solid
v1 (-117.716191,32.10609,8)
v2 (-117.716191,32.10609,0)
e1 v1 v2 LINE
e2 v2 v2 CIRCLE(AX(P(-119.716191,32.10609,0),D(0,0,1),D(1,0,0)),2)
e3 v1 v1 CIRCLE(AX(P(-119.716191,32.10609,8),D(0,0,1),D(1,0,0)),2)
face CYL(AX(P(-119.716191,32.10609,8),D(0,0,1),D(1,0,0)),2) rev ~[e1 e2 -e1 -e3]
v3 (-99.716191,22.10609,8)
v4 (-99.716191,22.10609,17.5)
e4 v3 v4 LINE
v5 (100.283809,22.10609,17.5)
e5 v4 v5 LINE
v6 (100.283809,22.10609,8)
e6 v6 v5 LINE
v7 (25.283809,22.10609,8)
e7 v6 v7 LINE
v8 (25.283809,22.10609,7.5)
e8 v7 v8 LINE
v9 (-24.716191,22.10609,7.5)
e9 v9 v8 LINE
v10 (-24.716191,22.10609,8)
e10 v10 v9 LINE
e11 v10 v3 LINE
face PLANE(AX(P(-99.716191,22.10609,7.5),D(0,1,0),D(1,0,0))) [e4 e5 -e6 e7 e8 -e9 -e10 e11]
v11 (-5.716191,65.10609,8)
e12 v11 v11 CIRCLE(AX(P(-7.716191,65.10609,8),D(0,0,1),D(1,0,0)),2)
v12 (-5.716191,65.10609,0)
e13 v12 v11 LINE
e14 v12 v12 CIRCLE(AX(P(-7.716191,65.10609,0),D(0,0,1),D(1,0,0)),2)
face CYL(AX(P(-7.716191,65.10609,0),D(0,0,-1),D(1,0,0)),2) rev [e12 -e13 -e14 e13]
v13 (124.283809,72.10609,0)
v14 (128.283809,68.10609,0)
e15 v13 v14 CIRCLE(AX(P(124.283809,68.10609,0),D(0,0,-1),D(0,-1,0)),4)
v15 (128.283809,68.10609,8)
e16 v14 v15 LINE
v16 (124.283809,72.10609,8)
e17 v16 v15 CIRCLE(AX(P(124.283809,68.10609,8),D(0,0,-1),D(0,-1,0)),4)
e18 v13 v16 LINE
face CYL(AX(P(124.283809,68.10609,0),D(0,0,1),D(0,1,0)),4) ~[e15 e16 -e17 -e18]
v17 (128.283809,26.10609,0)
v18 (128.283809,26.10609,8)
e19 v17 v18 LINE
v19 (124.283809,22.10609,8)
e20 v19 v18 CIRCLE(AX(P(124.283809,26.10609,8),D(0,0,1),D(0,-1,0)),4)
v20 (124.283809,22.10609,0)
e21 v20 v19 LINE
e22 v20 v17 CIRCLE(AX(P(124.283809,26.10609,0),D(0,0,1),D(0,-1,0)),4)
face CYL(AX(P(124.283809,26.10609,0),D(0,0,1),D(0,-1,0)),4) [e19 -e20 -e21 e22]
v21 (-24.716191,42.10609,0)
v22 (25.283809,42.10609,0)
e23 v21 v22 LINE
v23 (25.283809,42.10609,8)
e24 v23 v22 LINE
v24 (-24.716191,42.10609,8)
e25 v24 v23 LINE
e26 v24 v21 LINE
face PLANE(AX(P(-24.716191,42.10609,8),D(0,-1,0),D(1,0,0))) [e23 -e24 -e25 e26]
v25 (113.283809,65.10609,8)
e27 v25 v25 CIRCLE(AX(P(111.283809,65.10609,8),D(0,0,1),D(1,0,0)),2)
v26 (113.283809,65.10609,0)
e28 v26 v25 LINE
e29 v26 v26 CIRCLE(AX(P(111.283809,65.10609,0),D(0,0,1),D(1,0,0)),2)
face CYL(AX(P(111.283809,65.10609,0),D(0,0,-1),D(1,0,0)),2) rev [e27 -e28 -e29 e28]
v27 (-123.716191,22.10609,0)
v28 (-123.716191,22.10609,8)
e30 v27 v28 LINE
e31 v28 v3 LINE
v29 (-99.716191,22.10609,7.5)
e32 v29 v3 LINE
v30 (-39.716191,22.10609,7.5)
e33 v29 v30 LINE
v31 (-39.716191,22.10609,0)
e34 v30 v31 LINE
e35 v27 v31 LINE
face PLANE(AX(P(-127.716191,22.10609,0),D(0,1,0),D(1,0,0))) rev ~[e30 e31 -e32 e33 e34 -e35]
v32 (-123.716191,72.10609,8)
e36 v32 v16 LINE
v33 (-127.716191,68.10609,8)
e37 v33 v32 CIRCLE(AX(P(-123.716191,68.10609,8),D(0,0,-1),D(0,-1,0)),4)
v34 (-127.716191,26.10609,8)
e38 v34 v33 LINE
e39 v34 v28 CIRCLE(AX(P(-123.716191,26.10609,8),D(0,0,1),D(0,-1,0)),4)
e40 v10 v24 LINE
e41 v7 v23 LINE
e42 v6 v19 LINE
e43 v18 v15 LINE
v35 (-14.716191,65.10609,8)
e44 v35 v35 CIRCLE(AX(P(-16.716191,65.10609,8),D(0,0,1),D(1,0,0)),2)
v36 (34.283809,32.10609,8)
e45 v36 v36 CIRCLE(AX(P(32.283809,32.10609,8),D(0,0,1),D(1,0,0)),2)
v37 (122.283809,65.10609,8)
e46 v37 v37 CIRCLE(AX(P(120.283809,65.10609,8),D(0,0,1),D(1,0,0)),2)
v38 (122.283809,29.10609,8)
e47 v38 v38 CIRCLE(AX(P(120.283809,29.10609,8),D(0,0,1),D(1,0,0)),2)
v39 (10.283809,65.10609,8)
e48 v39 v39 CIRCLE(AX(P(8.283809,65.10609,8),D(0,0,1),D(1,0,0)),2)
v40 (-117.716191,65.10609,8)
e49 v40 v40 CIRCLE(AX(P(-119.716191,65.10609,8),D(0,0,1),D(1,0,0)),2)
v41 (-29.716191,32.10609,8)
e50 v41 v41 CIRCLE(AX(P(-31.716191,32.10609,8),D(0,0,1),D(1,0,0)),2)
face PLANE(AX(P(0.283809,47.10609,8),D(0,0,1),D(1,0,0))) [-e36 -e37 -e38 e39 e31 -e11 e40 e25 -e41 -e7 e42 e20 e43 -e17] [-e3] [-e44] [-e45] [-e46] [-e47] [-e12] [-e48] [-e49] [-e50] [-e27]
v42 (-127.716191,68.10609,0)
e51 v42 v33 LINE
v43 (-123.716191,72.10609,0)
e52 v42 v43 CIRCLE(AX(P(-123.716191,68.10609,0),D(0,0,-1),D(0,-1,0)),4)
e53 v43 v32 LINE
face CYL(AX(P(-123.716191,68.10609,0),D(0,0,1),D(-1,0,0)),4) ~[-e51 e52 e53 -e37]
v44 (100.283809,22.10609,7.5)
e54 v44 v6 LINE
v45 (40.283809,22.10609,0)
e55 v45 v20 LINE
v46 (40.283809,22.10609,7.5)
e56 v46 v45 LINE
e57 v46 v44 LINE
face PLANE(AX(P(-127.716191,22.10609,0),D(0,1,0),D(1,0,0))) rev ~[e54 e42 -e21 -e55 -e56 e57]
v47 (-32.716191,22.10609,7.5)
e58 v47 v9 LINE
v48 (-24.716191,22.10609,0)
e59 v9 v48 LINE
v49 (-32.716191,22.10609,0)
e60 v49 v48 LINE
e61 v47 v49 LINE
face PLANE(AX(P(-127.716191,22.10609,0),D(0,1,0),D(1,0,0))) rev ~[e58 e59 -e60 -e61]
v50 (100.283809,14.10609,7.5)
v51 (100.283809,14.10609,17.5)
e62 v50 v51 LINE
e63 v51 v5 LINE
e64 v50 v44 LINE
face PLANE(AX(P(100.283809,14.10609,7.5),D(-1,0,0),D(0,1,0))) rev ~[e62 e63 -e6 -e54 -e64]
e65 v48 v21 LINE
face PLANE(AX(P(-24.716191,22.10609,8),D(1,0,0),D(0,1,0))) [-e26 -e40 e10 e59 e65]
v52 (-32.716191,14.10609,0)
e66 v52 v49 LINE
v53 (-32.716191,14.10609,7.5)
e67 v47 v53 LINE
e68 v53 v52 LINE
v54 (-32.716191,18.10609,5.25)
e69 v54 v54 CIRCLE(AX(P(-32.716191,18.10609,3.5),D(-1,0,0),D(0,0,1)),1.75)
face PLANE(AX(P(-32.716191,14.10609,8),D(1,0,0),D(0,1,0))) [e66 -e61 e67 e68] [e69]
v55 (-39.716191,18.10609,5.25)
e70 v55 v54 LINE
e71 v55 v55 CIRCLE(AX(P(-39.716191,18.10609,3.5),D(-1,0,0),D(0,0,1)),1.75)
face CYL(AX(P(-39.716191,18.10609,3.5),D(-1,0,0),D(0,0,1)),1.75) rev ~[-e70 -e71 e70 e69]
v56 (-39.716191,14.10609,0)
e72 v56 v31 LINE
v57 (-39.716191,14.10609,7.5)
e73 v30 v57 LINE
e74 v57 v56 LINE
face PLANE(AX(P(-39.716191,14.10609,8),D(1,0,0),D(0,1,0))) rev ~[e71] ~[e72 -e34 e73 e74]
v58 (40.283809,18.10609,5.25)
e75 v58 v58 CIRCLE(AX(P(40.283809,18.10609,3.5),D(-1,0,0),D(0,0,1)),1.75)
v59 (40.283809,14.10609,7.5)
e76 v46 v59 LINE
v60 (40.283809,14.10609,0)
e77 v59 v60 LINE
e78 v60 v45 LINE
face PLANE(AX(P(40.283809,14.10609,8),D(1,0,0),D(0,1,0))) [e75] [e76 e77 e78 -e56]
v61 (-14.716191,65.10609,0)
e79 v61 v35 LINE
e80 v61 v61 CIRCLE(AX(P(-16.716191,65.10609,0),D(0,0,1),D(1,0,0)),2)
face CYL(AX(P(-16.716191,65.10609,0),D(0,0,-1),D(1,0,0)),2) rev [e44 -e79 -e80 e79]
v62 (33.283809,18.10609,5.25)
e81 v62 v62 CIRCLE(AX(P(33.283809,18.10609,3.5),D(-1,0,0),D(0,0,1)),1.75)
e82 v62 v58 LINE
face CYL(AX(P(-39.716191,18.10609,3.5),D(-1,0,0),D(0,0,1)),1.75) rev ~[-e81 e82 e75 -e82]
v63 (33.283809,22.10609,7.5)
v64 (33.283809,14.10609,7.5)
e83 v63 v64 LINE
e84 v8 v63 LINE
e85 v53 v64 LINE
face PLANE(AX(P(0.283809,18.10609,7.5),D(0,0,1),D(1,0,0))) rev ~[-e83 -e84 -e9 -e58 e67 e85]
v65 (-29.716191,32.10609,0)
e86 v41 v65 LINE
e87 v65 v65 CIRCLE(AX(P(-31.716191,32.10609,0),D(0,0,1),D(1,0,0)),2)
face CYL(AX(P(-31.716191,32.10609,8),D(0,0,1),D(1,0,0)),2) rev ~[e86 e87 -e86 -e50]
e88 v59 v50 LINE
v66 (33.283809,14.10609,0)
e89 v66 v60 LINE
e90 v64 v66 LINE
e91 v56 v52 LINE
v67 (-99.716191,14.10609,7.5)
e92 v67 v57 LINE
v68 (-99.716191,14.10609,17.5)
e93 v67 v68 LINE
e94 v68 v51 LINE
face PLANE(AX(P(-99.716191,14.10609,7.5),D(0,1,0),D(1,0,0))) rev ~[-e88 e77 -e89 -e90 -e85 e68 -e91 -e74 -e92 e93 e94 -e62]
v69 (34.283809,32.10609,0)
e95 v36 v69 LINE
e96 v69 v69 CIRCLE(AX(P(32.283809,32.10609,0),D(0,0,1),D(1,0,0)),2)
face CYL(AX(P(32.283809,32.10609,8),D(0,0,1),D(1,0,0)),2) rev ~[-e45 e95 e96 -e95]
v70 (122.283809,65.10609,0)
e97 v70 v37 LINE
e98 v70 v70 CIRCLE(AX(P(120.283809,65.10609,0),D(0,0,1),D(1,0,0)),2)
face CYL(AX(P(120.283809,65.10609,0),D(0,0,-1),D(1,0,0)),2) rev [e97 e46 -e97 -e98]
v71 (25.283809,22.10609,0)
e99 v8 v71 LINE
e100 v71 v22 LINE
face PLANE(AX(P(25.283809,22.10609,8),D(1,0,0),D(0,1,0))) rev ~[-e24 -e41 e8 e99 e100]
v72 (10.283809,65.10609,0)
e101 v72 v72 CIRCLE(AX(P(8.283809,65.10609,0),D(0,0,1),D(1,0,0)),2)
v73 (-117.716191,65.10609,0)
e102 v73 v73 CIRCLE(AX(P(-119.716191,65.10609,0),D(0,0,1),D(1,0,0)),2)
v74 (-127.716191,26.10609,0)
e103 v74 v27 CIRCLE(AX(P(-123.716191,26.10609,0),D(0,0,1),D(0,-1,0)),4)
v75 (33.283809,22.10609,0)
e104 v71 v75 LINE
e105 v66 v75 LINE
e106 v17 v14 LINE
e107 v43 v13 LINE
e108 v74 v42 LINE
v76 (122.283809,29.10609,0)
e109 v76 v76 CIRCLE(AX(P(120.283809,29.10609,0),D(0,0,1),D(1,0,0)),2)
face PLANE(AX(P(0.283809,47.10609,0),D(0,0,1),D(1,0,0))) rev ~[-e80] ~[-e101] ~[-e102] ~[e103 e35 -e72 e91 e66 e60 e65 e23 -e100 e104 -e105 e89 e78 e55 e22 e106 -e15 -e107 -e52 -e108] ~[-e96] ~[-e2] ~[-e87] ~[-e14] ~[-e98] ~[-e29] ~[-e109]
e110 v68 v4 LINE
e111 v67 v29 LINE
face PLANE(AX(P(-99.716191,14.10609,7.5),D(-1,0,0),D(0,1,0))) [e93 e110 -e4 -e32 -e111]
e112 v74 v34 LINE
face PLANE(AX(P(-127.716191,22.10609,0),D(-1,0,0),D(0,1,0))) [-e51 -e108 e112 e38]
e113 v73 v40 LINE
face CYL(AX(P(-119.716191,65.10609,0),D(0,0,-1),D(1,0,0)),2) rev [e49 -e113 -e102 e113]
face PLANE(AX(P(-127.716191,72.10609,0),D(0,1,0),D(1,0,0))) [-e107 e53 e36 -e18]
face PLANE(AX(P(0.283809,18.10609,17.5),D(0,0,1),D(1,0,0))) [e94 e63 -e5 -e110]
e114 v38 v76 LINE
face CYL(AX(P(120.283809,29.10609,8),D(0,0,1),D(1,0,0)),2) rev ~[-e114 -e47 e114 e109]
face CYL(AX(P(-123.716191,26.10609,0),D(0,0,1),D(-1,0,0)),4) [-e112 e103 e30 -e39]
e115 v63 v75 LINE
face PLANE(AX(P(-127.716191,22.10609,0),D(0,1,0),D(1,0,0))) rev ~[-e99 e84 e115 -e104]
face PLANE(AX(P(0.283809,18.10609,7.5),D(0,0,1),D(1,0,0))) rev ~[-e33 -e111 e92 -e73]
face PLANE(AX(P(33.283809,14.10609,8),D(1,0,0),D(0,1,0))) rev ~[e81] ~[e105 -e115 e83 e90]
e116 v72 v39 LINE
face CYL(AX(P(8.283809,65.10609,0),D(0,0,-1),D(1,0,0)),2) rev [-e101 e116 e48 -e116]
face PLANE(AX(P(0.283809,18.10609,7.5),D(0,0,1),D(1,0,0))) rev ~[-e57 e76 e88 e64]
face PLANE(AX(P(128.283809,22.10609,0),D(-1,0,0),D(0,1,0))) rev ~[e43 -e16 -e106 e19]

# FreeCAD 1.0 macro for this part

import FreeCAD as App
import Part
import Sketcher

V = App.Vector
Q = App.Units.Quantity


def edges_at(feature, points):
    """Names of the edges that pass closest to the given points."""
    edges = feature.Shape.Edges
    near = lambda p: min(range(len(edges)), key=lambda i: edges[i].distToShape(Part.Vertex(*p))[0])
    return sorted({f"Edge{near(p) + 1}" for p in points})


def add_polygon(sketch, points):
    """Adds a closed chain of lines whose ends are joined by coincident constraints."""
    first, n = sketch.GeometryCount, len(points)
    for a, b in zip(points, points[1:] + points[:1]):
        sketch.addGeometry(Part.LineSegment(App.Vector(*a, 0), App.Vector(*b, 0)), False)
    for i in range(n):
        sketch.addConstraint(Sketcher.Constraint("Coincident", first + i, 2, first + (i + 1) % n, 1))

doc = App.newDocument("Part")
params = doc.addObject("Spreadsheet::Sheet", "Params")
for row, (alias, value) in enumerate([
    ("sketch1_diameter", "4 mm"),
    ("sketch1_width", "256 mm"),
    ("sketch1_height", "50 mm"),
    ("pad1_length", "8 mm"),
    ("fillet_radius", "4 mm"),
    ("sketch2_width", "7 mm"),
    ("sketch2_height", "8 mm"),
    ("pad2_length", "8 mm"),
    ("sketch3_width", "50 mm"),
    ("sketch3_height", "20 mm"),
    ("pocket1_length", "8 mm"),
    ("sketch4_diameter", "4 mm"),
    ("pocket2_length", "8 mm"),
    ("sketch5_diameter", "3.5 mm"),
    ("pocket3_length", "113 mm"),
    ("sketch6_width", "200 mm"),
    ("sketch6_height", "8 mm"),
    ("pad3_length", "10 mm"),
], start=1):
    params.set(f"A{row}", alias)
    params.set(f"B{row}", "=" + value)
    params.setAlias(f"B{row}", alias)

body = doc.addObject("PartDesign::Body", "Body")

# Sketch on XY plane
sketch1 = body.newObject("Sketcher::SketchObject", "Sketch")
sketch1.AttachmentSupport = (doc.getObject("XY_Plane"), [""])
sketch1.MapMode = "FlatFace"
add_polygon(sketch1, [(-127.7, 72.1), (-127.7, 22.1), (128.3, 22.1), (128.3, 72.1)])  # lines 0-3
sketch1.addGeometry(Part.Circle(V(-119.7, 65.1, 0), V(0, 0, 1), 2), False)  # 4
sketch1.addGeometry(Part.Circle(V(-16.7, 65.1, 0), V(0, 0, 1), 2), False)  # 5
sketch1.addGeometry(Part.Circle(V(-7.7, 65.1, 0), V(0, 0, 1), 2), False)  # 6
sketch1.addGeometry(Part.Circle(V(8.3, 65.1, 0), V(0, 0, 1), 2), False)  # 7
sketch1.addGeometry(Part.Circle(V(111.3, 65.1, 0), V(0, 0, 1), 2), False)  # 8
sketch1.addGeometry(Part.Circle(V(120.3, 65.1, 0), V(0, 0, 1), 2), False)  # 9
sketch1.addConstraint([
    Sketcher.Constraint("Vertical", 0),
    Sketcher.Constraint("Horizontal", 1),
    Sketcher.Constraint("Vertical", 2),
    Sketcher.Constraint("Horizontal", 3),
    Sketcher.Constraint("Equal", 4, 5),
    Sketcher.Constraint("Equal", 5, 6),
    Sketcher.Constraint("Equal", 6, 7),
    Sketcher.Constraint("Equal", 7, 8),
    Sketcher.Constraint("Equal", 8, 9),
    Sketcher.Constraint("Horizontal", 4, 3, 5, 3),
    Sketcher.Constraint("Horizontal", 5, 3, 6, 3),
    Sketcher.Constraint("Horizontal", 6, 3, 7, 3),
    Sketcher.Constraint("Horizontal", 7, 3, 8, 3),
    Sketcher.Constraint("Horizontal", 8, 3, 9, 3),
    Sketcher.Constraint("Diameter", 4, Q("4 mm")),
    Sketcher.Constraint("DistanceX", 1, 1, 1, 2, Q("256 mm")),
    Sketcher.Constraint("DistanceY", 0, 2, 0, 1, Q("50 mm")),
    Sketcher.Constraint("DistanceX", 4, 3, 5, 3, Q("103 mm")),
    Sketcher.Constraint("DistanceX", 5, 3, 6, 3, Q("9 mm")),
    Sketcher.Constraint("DistanceX", 6, 3, 7, 3, Q("16 mm")),
    Sketcher.Constraint("DistanceX", 7, 3, 8, 3, Q("103 mm")),
    Sketcher.Constraint("DistanceX", 8, 3, 9, 3, Q("9 mm")),
    Sketcher.Constraint("DistanceX", 0, 2, 4, 3, Q("8 mm")),
    Sketcher.Constraint("DistanceY", 0, 2, 4, 3, Q("43 mm")),
    Sketcher.Constraint("DistanceX", 4, 3, -1, 1, Q("119.716191 mm")),
    Sketcher.Constraint("DistanceY", -1, 1, 4, 3, Q("65.10609 mm")),
])
sketch1.setExpression("Constraints[18]", "Params.sketch1_diameter")
sketch1.setExpression("Constraints[19]", "Params.sketch1_width")
sketch1.setExpression("Constraints[20]", "Params.sketch1_height")
pad1 = body.newObject("PartDesign::Pad", "Pad")
pad1.Profile = sketch1
pad1.setExpression("Length", "Params.pad1_length")
doc.recompute()

fillet = body.newObject("PartDesign::Fillet", "Fillet")
fillet.Base = (pad1, edges_at(pad1, [
    (-127.716, 72.106, 4),
    (128.284, 72.106, 4),
    (128.284, 22.106, 4),
    (-127.716, 22.106, 4),
]))
fillet.setExpression("Radius", "Params.fillet_radius")

# Sketch on XY plane
sketch2 = body.newObject("Sketcher::SketchObject", "Sketch001")
sketch2.AttachmentSupport = (doc.getObject("XY_Plane"), [""])
sketch2.MapMode = "FlatFace"
sketch2.AttachmentOffset = App.Placement(V(0, 0, 8), App.Rotation())
add_polygon(sketch2, [(33, 22), (33, 14), (40, 14), (40, 22)])  # lines 0-3
add_polygon(sketch2, [(-40, 22), (-40, 14), (-33, 14), (-33, 22)])  # lines 4-7
sketch2.addConstraint([
    Sketcher.Constraint("Vertical", 0),
    Sketcher.Constraint("Horizontal", 1),
    Sketcher.Constraint("Vertical", 2),
    Sketcher.Constraint("Horizontal", 3),
    Sketcher.Constraint("Vertical", 4),
    Sketcher.Constraint("Horizontal", 5),
    Sketcher.Constraint("Vertical", 6),
    Sketcher.Constraint("Horizontal", 7),
    Sketcher.Constraint("Horizontal", 1, 2, 4, 2),
    Sketcher.Constraint("Horizontal", 3, 2, 6, 2),
    Sketcher.Constraint("Equal", 3, 5),
    Sketcher.Constraint("DistanceX", 1, 1, 1, 2, Q("7 mm")),
    Sketcher.Constraint("DistanceY", 0, 2, 0, 1, Q("8 mm")),
    Sketcher.Constraint("DistanceX", 4, 2, 0, 2, Q("73 mm")),
    Sketcher.Constraint("DistanceX", -1, 1, 0, 2, Q("33.283809 mm")),
    Sketcher.Constraint("DistanceY", -1, 1, 0, 2, Q("14.10609 mm")),
])
sketch2.setExpression("Constraints[19]", "Params.sketch2_width")
sketch2.setExpression("Constraints[20]", "Params.sketch2_height")
pad2 = body.newObject("PartDesign::Pad", "Pad001")
pad2.Profile = sketch2
pad2.setExpression("Length", "Params.pad2_length")
pad2.Reversed = True

# Sketch on XY plane
sketch3 = body.newObject("Sketcher::SketchObject", "Sketch002")
sketch3.AttachmentSupport = (doc.getObject("XY_Plane"), [""])
sketch3.MapMode = "FlatFace"
sketch3.AttachmentOffset = App.Placement(V(0, 0, 8), App.Rotation())
add_polygon(sketch3, [(-25, 42), (-25, 22), (25, 22), (25, 42)])  # lines 0-3
sketch3.addConstraint([
    Sketcher.Constraint("Vertical", 0),
    Sketcher.Constraint("Horizontal", 1),
    Sketcher.Constraint("Vertical", 2),
    Sketcher.Constraint("Horizontal", 3),
    Sketcher.Constraint("DistanceX", 1, 1, 1, 2, Q("50 mm")),
    Sketcher.Constraint("DistanceY", 0, 2, 0, 1, Q("20 mm")),
    Sketcher.Constraint("DistanceX", 0, 2, -1, 1, Q("24.716191 mm")),
    Sketcher.Constraint("DistanceY", -1, 1, 0, 2, Q("22.10609 mm")),
])
sketch3.setExpression("Constraints[8]", "Params.sketch3_width")
sketch3.setExpression("Constraints[9]", "Params.sketch3_height")
pocket1 = body.newObject("PartDesign::Pocket", "Pocket")
pocket1.Profile = sketch3
pocket1.setExpression("Length", "Params.pocket1_length")

# Sketch on XY plane
sketch4 = body.newObject("Sketcher::SketchObject", "Sketch003")
sketch4.AttachmentSupport = (doc.getObject("XY_Plane"), [""])
sketch4.MapMode = "FlatFace"
sketch4.AttachmentOffset = App.Placement(V(0, 0, 8), App.Rotation())
sketch4.addGeometry([
    Part.Circle(V(-31.7, 32.1, 0), V(0, 0, 1), 2),
    Part.Circle(V(32.3, 32.1, 0), V(0, 0, 1), 2),
    Part.Circle(V(-119.7, 32.1, 0), V(0, 0, 1), 2),
    Part.Circle(V(120.3, 29.1, 0), V(0, 0, 1), 2),
], False)
sketch4.addConstraint([
    Sketcher.Constraint("Equal", 0, 1),
    Sketcher.Constraint("Equal", 1, 2),
    Sketcher.Constraint("Equal", 2, 3),
    Sketcher.Constraint("Horizontal", 0, 3, 1, 3),
    Sketcher.Constraint("Horizontal", 1, 3, 2, 3),
    Sketcher.Constraint("Diameter", 0, Q("4 mm")),
    Sketcher.Constraint("DistanceX", 0, 3, 1, 3, Q("64 mm")),
    Sketcher.Constraint("DistanceX", 2, 3, 0, 3, Q("88 mm")),
    Sketcher.Constraint("DistanceX", 1, 3, 3, 3, Q("88 mm")),
    Sketcher.Constraint("DistanceY", 3, 3, 1, 3, Q("3 mm")),
    Sketcher.Constraint("DistanceX", 0, 3, -1, 1, Q("31.716191 mm")),
    Sketcher.Constraint("DistanceY", -1, 1, 0, 3, Q("32.10609 mm")),
])
sketch4.setExpression("Constraints[5]", "Params.sketch4_diameter")
pocket2 = body.newObject("PartDesign::Pocket", "Pocket001")
pocket2.Profile = sketch4
pocket2.setExpression("Length", "Params.pocket2_length")

# Sketch on YZ plane
sketch5 = body.newObject("Sketcher::SketchObject", "Sketch004")
sketch5.AttachmentSupport = (doc.getObject("YZ_Plane"), [""])
sketch5.MapMode = "FlatFace"
sketch5.AttachmentOffset = App.Placement(V(0, 0, -39.716191), App.Rotation())
sketch5.addGeometry(Part.Circle(V(18.1, 3.5, 0), V(0, 0, 1), 1.8), False)
sketch5.addConstraint([
    Sketcher.Constraint("Diameter", 0, Q("3.5 mm")),
    Sketcher.Constraint("DistanceY", -1, 1, 0, 3, Q("3.5 mm")),
    Sketcher.Constraint("DistanceX", -1, 1, 0, 3, Q("18.10609 mm")),
])
sketch5.setExpression("Constraints[0]", "Params.sketch5_diameter")
pocket3 = body.newObject("PartDesign::Pocket", "Pocket002")
pocket3.Profile = sketch5
pocket3.setExpression("Length", "Params.pocket3_length")
pocket3.Reversed = True

# Sketch on XY plane
sketch6 = body.newObject("Sketcher::SketchObject", "Sketch005")
sketch6.AttachmentSupport = (doc.getObject("XY_Plane"), [""])
sketch6.MapMode = "FlatFace"
sketch6.AttachmentOffset = App.Placement(V(0, 0, 7.5), App.Rotation())
add_polygon(sketch6, [(-100, 22), (-100, 14), (100, 14), (100, 22)])  # lines 0-3
sketch6.addConstraint([
    Sketcher.Constraint("Vertical", 0),
    Sketcher.Constraint("Horizontal", 1),
    Sketcher.Constraint("Vertical", 2),
    Sketcher.Constraint("Horizontal", 3),
    Sketcher.Constraint("DistanceX", 1, 1, 1, 2, Q("200 mm")),
    Sketcher.Constraint("DistanceY", 0, 2, 0, 1, Q("8 mm")),
    Sketcher.Constraint("DistanceX", 0, 2, -1, 1, Q("99.716191 mm")),
    Sketcher.Constraint("DistanceY", -1, 1, 0, 2, Q("14.10609 mm")),
])
sketch6.setExpression("Constraints[8]", "Params.sketch6_width")
sketch6.setExpression("Constraints[9]", "Params.sketch6_height")
pad3 = body.newObject("PartDesign::Pad", "Pad002")
pad3.Profile = sketch6
pad3.setExpression("Length", "Params.pad3_length")

doc.recompute()
